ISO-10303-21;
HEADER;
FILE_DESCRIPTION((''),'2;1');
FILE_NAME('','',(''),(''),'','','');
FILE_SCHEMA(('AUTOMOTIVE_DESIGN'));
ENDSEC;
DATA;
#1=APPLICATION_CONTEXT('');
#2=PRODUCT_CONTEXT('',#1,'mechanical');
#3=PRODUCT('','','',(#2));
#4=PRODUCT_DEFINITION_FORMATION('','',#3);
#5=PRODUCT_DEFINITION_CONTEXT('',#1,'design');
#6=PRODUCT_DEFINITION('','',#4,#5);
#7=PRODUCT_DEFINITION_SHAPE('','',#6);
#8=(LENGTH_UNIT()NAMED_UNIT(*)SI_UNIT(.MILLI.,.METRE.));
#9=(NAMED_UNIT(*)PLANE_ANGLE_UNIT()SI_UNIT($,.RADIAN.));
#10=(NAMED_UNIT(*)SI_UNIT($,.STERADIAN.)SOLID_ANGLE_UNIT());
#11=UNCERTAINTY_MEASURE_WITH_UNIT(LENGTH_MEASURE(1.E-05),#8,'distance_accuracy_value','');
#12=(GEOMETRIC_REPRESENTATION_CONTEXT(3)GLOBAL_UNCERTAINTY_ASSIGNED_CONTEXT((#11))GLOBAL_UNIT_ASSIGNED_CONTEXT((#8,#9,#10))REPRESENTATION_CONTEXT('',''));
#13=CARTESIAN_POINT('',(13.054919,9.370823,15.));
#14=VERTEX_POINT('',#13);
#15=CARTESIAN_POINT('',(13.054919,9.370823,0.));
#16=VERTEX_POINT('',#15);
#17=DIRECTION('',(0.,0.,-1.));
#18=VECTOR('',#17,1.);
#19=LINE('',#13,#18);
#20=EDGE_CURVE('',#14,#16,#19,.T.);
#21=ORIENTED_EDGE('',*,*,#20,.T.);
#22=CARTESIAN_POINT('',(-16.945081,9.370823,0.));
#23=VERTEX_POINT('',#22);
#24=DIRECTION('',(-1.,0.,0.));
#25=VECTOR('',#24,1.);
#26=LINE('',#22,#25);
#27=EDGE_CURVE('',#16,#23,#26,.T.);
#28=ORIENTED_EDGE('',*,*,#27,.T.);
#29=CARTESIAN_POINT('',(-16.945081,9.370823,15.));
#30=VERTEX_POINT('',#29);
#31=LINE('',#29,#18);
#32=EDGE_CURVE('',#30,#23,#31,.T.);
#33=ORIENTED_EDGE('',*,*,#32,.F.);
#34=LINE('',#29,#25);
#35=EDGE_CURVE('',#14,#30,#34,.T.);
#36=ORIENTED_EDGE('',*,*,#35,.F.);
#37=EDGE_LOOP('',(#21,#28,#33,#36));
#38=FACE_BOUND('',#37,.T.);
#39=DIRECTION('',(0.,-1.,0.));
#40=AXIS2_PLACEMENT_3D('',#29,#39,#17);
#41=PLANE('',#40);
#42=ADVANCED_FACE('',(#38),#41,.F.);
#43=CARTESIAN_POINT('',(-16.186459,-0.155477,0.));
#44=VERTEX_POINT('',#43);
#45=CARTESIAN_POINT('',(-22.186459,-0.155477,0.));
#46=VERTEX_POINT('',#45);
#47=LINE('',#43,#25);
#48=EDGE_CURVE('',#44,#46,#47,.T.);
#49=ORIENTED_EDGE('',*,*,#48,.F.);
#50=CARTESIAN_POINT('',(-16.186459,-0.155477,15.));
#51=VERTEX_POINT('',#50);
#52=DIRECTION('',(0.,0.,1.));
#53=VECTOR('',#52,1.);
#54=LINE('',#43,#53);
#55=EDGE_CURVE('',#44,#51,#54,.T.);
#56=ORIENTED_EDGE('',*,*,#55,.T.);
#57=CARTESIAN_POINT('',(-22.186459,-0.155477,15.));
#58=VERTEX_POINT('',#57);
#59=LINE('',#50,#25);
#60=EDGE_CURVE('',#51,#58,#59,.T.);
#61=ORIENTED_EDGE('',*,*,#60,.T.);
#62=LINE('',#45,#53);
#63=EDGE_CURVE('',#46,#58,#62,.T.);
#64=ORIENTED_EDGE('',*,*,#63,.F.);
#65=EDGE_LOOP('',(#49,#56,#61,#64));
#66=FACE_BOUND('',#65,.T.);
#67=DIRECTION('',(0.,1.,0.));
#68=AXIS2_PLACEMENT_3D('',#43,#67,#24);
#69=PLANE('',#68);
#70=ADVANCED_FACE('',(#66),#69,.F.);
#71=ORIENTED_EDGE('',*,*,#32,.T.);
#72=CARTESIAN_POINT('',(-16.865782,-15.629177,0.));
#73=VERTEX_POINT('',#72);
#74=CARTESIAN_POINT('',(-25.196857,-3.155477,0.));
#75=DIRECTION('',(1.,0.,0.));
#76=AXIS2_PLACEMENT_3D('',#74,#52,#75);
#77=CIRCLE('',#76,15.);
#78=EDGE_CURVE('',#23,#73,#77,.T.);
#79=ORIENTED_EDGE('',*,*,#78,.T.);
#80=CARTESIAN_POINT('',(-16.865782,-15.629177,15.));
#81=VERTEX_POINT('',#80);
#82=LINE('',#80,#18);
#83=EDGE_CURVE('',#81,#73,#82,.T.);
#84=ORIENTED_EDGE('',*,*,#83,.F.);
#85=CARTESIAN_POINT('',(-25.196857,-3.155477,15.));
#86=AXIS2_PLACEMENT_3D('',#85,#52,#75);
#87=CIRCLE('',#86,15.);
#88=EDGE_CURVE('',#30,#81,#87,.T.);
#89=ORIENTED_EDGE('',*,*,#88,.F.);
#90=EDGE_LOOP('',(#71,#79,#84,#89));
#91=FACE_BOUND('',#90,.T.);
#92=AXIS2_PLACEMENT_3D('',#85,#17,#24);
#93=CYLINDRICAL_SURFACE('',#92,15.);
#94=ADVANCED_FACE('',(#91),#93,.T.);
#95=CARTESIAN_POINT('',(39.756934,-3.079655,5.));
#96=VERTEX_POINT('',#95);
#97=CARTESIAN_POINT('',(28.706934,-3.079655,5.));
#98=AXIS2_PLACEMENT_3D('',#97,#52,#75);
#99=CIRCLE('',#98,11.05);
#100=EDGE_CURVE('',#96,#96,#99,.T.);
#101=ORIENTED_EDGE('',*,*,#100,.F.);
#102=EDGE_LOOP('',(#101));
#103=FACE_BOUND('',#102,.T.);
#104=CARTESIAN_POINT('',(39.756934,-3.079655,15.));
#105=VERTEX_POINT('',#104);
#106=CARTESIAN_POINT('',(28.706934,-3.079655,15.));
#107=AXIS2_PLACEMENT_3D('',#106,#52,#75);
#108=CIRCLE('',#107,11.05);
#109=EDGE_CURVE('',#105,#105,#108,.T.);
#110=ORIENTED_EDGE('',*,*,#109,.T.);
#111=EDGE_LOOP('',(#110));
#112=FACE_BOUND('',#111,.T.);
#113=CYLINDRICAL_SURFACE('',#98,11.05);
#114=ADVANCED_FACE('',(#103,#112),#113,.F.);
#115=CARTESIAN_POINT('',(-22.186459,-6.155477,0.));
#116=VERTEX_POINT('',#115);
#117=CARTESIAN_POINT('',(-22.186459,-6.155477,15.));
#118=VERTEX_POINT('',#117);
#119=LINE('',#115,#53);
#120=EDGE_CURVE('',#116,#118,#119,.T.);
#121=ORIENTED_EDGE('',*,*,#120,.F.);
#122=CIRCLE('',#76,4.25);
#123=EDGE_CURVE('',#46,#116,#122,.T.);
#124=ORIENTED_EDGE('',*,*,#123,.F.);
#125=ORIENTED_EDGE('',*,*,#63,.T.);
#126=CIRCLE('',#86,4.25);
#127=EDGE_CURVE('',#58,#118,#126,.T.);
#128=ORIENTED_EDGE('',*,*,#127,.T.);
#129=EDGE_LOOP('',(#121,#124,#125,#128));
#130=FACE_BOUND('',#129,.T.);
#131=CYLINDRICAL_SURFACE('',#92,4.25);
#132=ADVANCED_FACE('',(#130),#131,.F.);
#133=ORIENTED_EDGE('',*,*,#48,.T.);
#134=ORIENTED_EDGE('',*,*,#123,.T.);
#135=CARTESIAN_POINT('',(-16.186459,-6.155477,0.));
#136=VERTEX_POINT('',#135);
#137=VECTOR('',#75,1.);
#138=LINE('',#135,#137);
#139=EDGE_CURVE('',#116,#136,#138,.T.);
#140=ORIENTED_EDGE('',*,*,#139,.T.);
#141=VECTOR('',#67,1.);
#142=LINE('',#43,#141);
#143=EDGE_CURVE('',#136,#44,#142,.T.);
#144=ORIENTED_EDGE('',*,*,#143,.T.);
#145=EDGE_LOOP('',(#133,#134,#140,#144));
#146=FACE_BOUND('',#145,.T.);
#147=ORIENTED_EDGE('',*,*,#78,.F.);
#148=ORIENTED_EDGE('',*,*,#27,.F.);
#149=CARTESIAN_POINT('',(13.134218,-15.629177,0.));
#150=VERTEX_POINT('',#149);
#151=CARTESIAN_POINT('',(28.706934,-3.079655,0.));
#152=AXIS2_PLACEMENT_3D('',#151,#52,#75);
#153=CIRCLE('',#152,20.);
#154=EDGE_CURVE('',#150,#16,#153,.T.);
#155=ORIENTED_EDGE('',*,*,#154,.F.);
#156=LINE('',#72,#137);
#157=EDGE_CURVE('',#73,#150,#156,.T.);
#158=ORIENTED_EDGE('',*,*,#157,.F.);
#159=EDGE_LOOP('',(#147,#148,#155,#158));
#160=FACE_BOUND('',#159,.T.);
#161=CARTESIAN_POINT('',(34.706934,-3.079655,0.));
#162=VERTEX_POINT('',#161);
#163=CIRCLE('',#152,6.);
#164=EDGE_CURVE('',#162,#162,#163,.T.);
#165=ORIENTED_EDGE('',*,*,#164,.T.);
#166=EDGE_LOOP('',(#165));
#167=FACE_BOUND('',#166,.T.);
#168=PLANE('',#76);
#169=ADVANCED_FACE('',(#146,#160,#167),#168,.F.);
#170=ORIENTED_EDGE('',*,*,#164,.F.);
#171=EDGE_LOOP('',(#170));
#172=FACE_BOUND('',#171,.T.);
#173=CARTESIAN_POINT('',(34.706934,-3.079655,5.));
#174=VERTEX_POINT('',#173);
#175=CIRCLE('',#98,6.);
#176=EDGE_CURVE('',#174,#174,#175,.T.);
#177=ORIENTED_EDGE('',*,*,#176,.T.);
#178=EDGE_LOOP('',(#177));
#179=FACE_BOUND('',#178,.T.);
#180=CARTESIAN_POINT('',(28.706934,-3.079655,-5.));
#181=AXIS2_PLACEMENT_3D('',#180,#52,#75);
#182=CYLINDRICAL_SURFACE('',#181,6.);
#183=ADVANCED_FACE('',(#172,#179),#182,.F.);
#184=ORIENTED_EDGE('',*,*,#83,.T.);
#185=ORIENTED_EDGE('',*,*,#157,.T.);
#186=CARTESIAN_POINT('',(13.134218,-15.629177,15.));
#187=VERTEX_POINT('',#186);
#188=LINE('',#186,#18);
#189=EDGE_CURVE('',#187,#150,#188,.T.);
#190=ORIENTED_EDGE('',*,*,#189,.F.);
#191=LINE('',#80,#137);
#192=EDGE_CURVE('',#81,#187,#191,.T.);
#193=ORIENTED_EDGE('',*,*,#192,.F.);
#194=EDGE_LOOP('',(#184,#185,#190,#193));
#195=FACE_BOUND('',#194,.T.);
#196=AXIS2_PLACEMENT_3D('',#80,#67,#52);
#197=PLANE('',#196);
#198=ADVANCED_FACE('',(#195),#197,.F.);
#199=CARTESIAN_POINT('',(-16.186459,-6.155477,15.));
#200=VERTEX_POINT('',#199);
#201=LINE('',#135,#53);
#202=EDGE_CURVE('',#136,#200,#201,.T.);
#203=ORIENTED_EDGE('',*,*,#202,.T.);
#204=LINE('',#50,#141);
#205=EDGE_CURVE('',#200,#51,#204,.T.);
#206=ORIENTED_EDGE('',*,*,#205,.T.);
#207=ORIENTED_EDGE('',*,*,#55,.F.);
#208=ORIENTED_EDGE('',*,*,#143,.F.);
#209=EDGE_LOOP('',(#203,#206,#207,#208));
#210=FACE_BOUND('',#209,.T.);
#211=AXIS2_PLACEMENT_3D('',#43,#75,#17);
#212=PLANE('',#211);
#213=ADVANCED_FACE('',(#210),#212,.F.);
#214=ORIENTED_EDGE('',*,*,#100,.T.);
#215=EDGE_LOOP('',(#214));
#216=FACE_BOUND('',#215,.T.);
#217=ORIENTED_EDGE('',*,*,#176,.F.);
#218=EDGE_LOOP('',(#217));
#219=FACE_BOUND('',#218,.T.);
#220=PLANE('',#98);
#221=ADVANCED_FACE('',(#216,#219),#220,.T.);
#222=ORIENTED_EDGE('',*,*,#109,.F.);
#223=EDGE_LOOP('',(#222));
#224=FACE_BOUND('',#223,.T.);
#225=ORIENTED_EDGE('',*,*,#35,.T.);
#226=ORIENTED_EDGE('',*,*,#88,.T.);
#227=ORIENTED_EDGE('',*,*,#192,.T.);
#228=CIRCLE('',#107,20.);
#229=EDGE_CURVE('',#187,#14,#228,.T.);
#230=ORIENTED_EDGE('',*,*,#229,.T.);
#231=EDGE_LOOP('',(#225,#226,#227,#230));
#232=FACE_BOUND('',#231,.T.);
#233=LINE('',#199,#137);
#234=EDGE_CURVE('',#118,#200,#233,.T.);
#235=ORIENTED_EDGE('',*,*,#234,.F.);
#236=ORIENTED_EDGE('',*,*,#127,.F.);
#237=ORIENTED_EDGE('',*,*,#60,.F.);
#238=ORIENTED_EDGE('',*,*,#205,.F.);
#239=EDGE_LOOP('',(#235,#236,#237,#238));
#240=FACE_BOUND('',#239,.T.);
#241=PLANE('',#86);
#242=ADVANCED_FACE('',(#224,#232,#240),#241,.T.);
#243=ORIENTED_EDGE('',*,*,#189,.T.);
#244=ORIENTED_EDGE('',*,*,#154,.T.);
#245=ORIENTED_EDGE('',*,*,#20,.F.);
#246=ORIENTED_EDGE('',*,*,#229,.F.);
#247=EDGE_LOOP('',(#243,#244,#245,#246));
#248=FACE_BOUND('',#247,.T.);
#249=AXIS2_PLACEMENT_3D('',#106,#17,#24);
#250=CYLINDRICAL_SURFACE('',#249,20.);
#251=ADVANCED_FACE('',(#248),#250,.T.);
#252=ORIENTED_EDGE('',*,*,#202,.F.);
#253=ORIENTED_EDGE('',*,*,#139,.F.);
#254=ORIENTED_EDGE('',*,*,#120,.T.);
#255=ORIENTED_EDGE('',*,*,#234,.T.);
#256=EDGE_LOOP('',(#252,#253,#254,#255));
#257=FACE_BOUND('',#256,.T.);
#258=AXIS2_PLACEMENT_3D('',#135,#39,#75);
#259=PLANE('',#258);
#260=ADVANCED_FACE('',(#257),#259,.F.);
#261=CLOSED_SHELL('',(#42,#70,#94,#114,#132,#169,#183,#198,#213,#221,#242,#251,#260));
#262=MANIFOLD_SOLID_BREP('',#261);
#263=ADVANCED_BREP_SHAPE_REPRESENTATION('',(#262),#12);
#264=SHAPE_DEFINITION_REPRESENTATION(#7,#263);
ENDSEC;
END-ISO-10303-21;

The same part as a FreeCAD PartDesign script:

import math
import FreeCAD as App
import Part
import Sketcher
from FreeCAD import Vector
Q = App.Units.Quantity

doc = App.newDocument("Part")
body = doc.addObject("PartDesign::Body", "Body")

# Sketch on XY plane
sketch1 = body.newObject("Sketcher::SketchObject", "Sketch")
sketch1.AttachmentSupport = (doc.getObject("XY_Plane"), [""])
sketch1.MapMode = "FlatFace"
sketch1.addGeometry(Part.LineSegment(Vector(-16.865782, -15.629177, 0), Vector(13.134218, -15.629177, 0)), False)
sketch1.addGeometry(Part.ArcOfCircle(Part.Circle(Vector(28.706934, -3.079655, 0), Vector(0, 0, 1), 20), math.radians(-141.135842), math.radians(141.499321)), False)
sketch1.addGeometry(Part.LineSegment(Vector(13.054919, 9.370823, 0), Vector(-16.945081, 9.370823, 0)), False)
sketch1.addGeometry(Part.ArcOfCircle(Part.Circle(Vector(-25.196857, -3.155477, 0), Vector(0, 0, 1), 15), math.radians(56.624864), math.radians(303.738615)), False)
sketch1.addGeometry(Part.Circle(Vector(-25.196857, -3.155477, 0), Vector(0, 0, 1), 4.25), False)
sketch1.addConstraint(Sketcher.Constraint("Coincident", 0, 2, 1, 1))
sketch1.addConstraint(Sketcher.Constraint("Coincident", 1, 2, 2, 1))
sketch1.addConstraint(Sketcher.Constraint("Coincident", 2, 2, 3, 1))
sketch1.addConstraint(Sketcher.Constraint("Coincident", 3, 2, 0, 1))
sketch1.addConstraint(Sketcher.Constraint("Horizontal", 0))
sketch1.addConstraint(Sketcher.Constraint("Horizontal", 2))
sketch1.addConstraint(Sketcher.Constraint("Coincident", 4, 3, 3, 3))
sketch1.addConstraint(Sketcher.Constraint("Equal", 0, 2))
sketch1.addConstraint(Sketcher.Constraint("Radius", 1, Q("20 mm")))
sketch1.addConstraint(Sketcher.Constraint("Radius", 3, Q("15 mm")))
sketch1.addConstraint(Sketcher.Constraint("Diameter", 4, Q("8.5 mm")))
sketch1.addConstraint(Sketcher.Constraint("DistanceX", 0, 1, 0, 2, Q("30 mm")))
sketch1.addConstraint(Sketcher.Constraint("DistanceY", 0, 2, 1, 2, Q("25 mm")))
sketch1.addConstraint(Sketcher.Constraint("DistanceY", 0, 2, 4, 3, Q("12.4737 mm")))
sketch1.addConstraint(Sketcher.Constraint("DistanceX", -1, 1, 1, 2, Q("13.054919 mm")))
sketch1.addConstraint(Sketcher.Constraint("DistanceY", 1, 3, -1, 1, Q("3.079655 mm")))
pad1 = body.newObject("PartDesign::Pad", "Pad")
pad1.Profile = sketch1
pad1.Length = 15

# Sketch on XY plane
sketch2 = body.newObject("Sketcher::SketchObject", "Sketch001")
sketch2.AttachmentSupport = (doc.getObject("XY_Plane"), [""])
sketch2.MapMode = "FlatFace"
sketch2.AttachmentOffset = App.Placement(Vector(0, 0, 15), App.Rotation())
sketch2.addGeometry(Part.Circle(Vector(28.706934, -3.079655, 0), Vector(0, 0, 1), 11.05), False)
sketch2.addConstraint(Sketcher.Constraint("Diameter", 0, Q("22.1 mm")))
sketch2.addConstraint(Sketcher.Constraint("DistanceX", -1, 1, 0, 3, Q("28.706934 mm")))
sketch2.addConstraint(Sketcher.Constraint("DistanceY", 0, 3, -1, 1, Q("3.079655 mm")))
pocket1 = body.newObject("PartDesign::Pocket", "Pocket")
pocket1.Profile = sketch2
pocket1.Length = 10

# Sketch on XY plane
sketch3 = body.newObject("Sketcher::SketchObject", "Sketch002")
sketch3.AttachmentSupport = (doc.getObject("XY_Plane"), [""])
sketch3.MapMode = "FlatFace"
sketch3.AttachmentOffset = App.Placement(Vector(0, 0, 5), App.Rotation())
sketch3.addGeometry(Part.Circle(Vector(28.706934, -3.079655, 0), Vector(0, 0, 1), 6), False)
sketch3.addConstraint(Sketcher.Constraint("Diameter", 0, Q("12 mm")))
sketch3.addConstraint(Sketcher.Constraint("DistanceX", -1, 1, 0, 3, Q("28.706934 mm")))
sketch3.addConstraint(Sketcher.Constraint("DistanceY", 0, 3, -1, 1, Q("3.079655 mm")))
pocket2 = body.newObject("PartDesign::Pocket", "Pocket001")
pocket2.Profile = sketch3
pocket2.Length = 10

# Sketch on XY plane
sketch4 = body.newObject("Sketcher::SketchObject", "Sketch003")
sketch4.AttachmentSupport = (doc.getObject("XY_Plane"), [""])
sketch4.MapMode = "FlatFace"
sketch4.AttachmentOffset = App.Placement(Vector(0, 0, 15), App.Rotation())
sketch4.addGeometry(Part.LineSegment(Vector(-16.186459, -0.155477, 0), Vector(-22.186459, -0.155477, 0)), False)
sketch4.addGeometry(Part.ArcOfCircle(Part.Circle(Vector(-25.196857, -3.155477, 0), Vector(0, 0, 1), 4.25), math.radians(44.900872), math.radians(315.099128)), False)
sketch4.addGeometry(Part.LineSegment(Vector(-22.186459, -6.155477, 0), Vector(-16.186459, -6.155477, 0)), False)
sketch4.addGeometry(Part.LineSegment(Vector(-16.186459, -6.155477, 0), Vector(-16.186459, -0.155477, 0)), False)
sketch4.addConstraint(Sketcher.Constraint("Coincident", 0, 2, 1, 1))
sketch4.addConstraint(Sketcher.Constraint("Coincident", 1, 2, 2, 1))
sketch4.addConstraint(Sketcher.Constraint("Coincident", 2, 2, 3, 1))
sketch4.addConstraint(Sketcher.Constraint("Coincident", 3, 2, 0, 1))
sketch4.addConstraint(Sketcher.Constraint("Horizontal", 0))
sketch4.addConstraint(Sketcher.Constraint("Horizontal", 2))
sketch4.addConstraint(Sketcher.Constraint("Vertical", 3))
sketch4.addConstraint(Sketcher.Constraint("Vertical", 0, 2, 1, 2))
sketch4.addConstraint(Sketcher.Constraint("Equal", 2, 3))
sketch4.addConstraint(Sketcher.Constraint("DistanceX", 0, 2, 0, 1, Q("6 mm")))
sketch4.addConstraint(Sketcher.Constraint("Radius", 1, Q("4.25 mm")))
sketch4.addConstraint(Sketcher.Constraint("DistanceX", 0, 2, -1, 1, Q("22.186459 mm")))
sketch4.addConstraint(Sketcher.Constraint("DistanceY", 1, 3, -1, 1, Q("3.155477 mm")))
pocket3 = body.newObject("PartDesign::Pocket", "Pocket002")
pocket3.Profile = sketch4
pocket3.Length = 15

doc.recompute()
